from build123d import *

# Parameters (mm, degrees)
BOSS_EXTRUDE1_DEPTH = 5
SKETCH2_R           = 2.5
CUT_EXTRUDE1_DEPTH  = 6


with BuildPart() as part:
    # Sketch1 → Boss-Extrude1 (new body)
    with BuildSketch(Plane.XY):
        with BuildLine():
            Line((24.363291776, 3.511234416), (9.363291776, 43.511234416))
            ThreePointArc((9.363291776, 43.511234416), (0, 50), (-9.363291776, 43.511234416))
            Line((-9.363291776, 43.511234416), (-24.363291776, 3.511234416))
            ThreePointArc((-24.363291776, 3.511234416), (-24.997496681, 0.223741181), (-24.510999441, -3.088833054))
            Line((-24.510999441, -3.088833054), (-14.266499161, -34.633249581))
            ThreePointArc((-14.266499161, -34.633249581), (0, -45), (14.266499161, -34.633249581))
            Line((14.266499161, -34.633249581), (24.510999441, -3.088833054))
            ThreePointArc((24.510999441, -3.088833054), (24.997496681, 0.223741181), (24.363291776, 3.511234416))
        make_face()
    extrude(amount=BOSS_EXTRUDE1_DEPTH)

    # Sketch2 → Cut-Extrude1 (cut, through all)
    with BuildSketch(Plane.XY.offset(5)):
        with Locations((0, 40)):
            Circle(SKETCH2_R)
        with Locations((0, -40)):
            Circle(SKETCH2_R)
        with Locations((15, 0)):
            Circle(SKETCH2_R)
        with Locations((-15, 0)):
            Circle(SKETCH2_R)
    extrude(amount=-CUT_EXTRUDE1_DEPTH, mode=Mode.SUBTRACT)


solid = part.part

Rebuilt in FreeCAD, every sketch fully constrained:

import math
import FreeCAD as App
import Part
import Sketcher
from FreeCAD import Vector

doc = App.newDocument("Part")
body = doc.addObject("PartDesign::Body", "Body")

# Sketch on XY plane
sketch1 = body.newObject("Sketcher::SketchObject", "Sketch")
sketch1.AttachmentSupport = (doc.getObject("XY_Plane"), [""])
sketch1.MapMode = "FlatFace"
sketch1.addGeometry([
    Part.LineSegment(Vector(24, 4, 0), Vector(9, 44, 0)),  # 0
    Part.ArcOfCircle(Part.Circle(Vector(0, 40, 0), Vector(0, 0, 1), 10), math.radians(21), math.radians(159)),  # 1
    Part.LineSegment(Vector(-9, 44, 0), Vector(-24, 4, 0)),  # 2
    Part.ArcOfCircle(Part.Circle(Vector(-15, 0, 0), Vector(0, 0, 1), 10), math.radians(159), math.radians(198)),  # 3
    Part.LineSegment(Vector(-25, -3, 0), Vector(-14, -35, 0)),  # 4
    Part.ArcOfCircle(Part.Circle(Vector(0, -30, 0), Vector(0, 0, 1), 15), math.radians(-162), math.radians(-18)),  # 5
    Part.LineSegment(Vector(14, -35, 0), Vector(25, -3, 0)),  # 6
    Part.ArcOfCircle(Part.Circle(Vector(15, 0, 0), Vector(0, 0, 1), 10), math.radians(-18), math.radians(21)),  # 7
], False)
sketch1.addConstraint([
    Sketcher.Constraint("Tangent", 0, 2, 1, 1),
    Sketcher.Constraint("Tangent", 1, 2, 2, 1),
    Sketcher.Constraint("Tangent", 2, 2, 3, 1),
    Sketcher.Constraint("Tangent", 3, 2, 4, 1),
    Sketcher.Constraint("Tangent", 4, 2, 5, 1),
    Sketcher.Constraint("Tangent", 5, 2, 6, 1),
    Sketcher.Constraint("Tangent", 6, 2, 7, 1),
    Sketcher.Constraint("Tangent", 7, 2, 0, 1),
    Sketcher.Constraint("Equal", 1, 3),
    Sketcher.Constraint("Equal", 3, 7),
    Sketcher.Constraint("Symmetric", 3, 3, 7, 3, -1, 1),
    Sketcher.Constraint("Symmetric", 0, 2, 1, 2, -2),
    Sketcher.Constraint("PointOnObject", 5, 3, -2),
    Sketcher.Constraint("Radius", 1, 10.0),
    Sketcher.Constraint("Radius", 5, 15.0),
    Sketcher.Constraint("DistanceY", -1, 1, 1, 3, 40.0),
    Sketcher.Constraint("DistanceX", 3, 3, -1, 1, 15.0),
    Sketcher.Constraint("DistanceY", 5, 3, -1, 1, 30.0),
])
pad1 = body.newObject("PartDesign::Pad", "Pad")
pad1.Profile = sketch1
pad1.Length = 5

# Sketch on XY plane
sketch2 = body.newObject("Sketcher::SketchObject", "Sketch001")
sketch2.AttachmentSupport = (doc.getObject("XY_Plane"), [""])
sketch2.MapMode = "FlatFace"
sketch2.AttachmentOffset = App.Placement(Vector(0, 0, 5), App.Rotation())
sketch2.addGeometry([
    Part.Circle(Vector(0, 40, 0), Vector(0, 0, 1), 2.5),
    Part.Circle(Vector(0, -40, 0), Vector(0, 0, 1), 2.5),
    Part.Circle(Vector(15, 0, 0), Vector(0, 0, 1), 2.5),
    Part.Circle(Vector(-15, 0, 0), Vector(0, 0, 1), 2.5),
], False)
sketch2.addConstraint([
    Sketcher.Constraint("Equal", 0, 1),
    Sketcher.Constraint("Equal", 1, 2),
    Sketcher.Constraint("Equal", 2, 3),
    Sketcher.Constraint("Symmetric", 0, 3, 1, 3, -1, 1),
    Sketcher.Constraint("Symmetric", 2, 3, 3, 3, -1, 1),
    Sketcher.Constraint("PointOnObject", 0, 3, -2),
    Sketcher.Constraint("PointOnObject", 2, 3, -1),
    Sketcher.Constraint("Diameter", 0, 5.0),
    Sketcher.Constraint("DistanceY", -1, 1, 0, 3, 40.0),
    Sketcher.Constraint("DistanceX", -1, 1, 2, 3, 15.0),
])
pocket1 = body.newObject("PartDesign::Pocket", "Pocket")
pocket1.Profile = sketch2
pocket1.Type = "ThroughAll"

doc.recompute()
